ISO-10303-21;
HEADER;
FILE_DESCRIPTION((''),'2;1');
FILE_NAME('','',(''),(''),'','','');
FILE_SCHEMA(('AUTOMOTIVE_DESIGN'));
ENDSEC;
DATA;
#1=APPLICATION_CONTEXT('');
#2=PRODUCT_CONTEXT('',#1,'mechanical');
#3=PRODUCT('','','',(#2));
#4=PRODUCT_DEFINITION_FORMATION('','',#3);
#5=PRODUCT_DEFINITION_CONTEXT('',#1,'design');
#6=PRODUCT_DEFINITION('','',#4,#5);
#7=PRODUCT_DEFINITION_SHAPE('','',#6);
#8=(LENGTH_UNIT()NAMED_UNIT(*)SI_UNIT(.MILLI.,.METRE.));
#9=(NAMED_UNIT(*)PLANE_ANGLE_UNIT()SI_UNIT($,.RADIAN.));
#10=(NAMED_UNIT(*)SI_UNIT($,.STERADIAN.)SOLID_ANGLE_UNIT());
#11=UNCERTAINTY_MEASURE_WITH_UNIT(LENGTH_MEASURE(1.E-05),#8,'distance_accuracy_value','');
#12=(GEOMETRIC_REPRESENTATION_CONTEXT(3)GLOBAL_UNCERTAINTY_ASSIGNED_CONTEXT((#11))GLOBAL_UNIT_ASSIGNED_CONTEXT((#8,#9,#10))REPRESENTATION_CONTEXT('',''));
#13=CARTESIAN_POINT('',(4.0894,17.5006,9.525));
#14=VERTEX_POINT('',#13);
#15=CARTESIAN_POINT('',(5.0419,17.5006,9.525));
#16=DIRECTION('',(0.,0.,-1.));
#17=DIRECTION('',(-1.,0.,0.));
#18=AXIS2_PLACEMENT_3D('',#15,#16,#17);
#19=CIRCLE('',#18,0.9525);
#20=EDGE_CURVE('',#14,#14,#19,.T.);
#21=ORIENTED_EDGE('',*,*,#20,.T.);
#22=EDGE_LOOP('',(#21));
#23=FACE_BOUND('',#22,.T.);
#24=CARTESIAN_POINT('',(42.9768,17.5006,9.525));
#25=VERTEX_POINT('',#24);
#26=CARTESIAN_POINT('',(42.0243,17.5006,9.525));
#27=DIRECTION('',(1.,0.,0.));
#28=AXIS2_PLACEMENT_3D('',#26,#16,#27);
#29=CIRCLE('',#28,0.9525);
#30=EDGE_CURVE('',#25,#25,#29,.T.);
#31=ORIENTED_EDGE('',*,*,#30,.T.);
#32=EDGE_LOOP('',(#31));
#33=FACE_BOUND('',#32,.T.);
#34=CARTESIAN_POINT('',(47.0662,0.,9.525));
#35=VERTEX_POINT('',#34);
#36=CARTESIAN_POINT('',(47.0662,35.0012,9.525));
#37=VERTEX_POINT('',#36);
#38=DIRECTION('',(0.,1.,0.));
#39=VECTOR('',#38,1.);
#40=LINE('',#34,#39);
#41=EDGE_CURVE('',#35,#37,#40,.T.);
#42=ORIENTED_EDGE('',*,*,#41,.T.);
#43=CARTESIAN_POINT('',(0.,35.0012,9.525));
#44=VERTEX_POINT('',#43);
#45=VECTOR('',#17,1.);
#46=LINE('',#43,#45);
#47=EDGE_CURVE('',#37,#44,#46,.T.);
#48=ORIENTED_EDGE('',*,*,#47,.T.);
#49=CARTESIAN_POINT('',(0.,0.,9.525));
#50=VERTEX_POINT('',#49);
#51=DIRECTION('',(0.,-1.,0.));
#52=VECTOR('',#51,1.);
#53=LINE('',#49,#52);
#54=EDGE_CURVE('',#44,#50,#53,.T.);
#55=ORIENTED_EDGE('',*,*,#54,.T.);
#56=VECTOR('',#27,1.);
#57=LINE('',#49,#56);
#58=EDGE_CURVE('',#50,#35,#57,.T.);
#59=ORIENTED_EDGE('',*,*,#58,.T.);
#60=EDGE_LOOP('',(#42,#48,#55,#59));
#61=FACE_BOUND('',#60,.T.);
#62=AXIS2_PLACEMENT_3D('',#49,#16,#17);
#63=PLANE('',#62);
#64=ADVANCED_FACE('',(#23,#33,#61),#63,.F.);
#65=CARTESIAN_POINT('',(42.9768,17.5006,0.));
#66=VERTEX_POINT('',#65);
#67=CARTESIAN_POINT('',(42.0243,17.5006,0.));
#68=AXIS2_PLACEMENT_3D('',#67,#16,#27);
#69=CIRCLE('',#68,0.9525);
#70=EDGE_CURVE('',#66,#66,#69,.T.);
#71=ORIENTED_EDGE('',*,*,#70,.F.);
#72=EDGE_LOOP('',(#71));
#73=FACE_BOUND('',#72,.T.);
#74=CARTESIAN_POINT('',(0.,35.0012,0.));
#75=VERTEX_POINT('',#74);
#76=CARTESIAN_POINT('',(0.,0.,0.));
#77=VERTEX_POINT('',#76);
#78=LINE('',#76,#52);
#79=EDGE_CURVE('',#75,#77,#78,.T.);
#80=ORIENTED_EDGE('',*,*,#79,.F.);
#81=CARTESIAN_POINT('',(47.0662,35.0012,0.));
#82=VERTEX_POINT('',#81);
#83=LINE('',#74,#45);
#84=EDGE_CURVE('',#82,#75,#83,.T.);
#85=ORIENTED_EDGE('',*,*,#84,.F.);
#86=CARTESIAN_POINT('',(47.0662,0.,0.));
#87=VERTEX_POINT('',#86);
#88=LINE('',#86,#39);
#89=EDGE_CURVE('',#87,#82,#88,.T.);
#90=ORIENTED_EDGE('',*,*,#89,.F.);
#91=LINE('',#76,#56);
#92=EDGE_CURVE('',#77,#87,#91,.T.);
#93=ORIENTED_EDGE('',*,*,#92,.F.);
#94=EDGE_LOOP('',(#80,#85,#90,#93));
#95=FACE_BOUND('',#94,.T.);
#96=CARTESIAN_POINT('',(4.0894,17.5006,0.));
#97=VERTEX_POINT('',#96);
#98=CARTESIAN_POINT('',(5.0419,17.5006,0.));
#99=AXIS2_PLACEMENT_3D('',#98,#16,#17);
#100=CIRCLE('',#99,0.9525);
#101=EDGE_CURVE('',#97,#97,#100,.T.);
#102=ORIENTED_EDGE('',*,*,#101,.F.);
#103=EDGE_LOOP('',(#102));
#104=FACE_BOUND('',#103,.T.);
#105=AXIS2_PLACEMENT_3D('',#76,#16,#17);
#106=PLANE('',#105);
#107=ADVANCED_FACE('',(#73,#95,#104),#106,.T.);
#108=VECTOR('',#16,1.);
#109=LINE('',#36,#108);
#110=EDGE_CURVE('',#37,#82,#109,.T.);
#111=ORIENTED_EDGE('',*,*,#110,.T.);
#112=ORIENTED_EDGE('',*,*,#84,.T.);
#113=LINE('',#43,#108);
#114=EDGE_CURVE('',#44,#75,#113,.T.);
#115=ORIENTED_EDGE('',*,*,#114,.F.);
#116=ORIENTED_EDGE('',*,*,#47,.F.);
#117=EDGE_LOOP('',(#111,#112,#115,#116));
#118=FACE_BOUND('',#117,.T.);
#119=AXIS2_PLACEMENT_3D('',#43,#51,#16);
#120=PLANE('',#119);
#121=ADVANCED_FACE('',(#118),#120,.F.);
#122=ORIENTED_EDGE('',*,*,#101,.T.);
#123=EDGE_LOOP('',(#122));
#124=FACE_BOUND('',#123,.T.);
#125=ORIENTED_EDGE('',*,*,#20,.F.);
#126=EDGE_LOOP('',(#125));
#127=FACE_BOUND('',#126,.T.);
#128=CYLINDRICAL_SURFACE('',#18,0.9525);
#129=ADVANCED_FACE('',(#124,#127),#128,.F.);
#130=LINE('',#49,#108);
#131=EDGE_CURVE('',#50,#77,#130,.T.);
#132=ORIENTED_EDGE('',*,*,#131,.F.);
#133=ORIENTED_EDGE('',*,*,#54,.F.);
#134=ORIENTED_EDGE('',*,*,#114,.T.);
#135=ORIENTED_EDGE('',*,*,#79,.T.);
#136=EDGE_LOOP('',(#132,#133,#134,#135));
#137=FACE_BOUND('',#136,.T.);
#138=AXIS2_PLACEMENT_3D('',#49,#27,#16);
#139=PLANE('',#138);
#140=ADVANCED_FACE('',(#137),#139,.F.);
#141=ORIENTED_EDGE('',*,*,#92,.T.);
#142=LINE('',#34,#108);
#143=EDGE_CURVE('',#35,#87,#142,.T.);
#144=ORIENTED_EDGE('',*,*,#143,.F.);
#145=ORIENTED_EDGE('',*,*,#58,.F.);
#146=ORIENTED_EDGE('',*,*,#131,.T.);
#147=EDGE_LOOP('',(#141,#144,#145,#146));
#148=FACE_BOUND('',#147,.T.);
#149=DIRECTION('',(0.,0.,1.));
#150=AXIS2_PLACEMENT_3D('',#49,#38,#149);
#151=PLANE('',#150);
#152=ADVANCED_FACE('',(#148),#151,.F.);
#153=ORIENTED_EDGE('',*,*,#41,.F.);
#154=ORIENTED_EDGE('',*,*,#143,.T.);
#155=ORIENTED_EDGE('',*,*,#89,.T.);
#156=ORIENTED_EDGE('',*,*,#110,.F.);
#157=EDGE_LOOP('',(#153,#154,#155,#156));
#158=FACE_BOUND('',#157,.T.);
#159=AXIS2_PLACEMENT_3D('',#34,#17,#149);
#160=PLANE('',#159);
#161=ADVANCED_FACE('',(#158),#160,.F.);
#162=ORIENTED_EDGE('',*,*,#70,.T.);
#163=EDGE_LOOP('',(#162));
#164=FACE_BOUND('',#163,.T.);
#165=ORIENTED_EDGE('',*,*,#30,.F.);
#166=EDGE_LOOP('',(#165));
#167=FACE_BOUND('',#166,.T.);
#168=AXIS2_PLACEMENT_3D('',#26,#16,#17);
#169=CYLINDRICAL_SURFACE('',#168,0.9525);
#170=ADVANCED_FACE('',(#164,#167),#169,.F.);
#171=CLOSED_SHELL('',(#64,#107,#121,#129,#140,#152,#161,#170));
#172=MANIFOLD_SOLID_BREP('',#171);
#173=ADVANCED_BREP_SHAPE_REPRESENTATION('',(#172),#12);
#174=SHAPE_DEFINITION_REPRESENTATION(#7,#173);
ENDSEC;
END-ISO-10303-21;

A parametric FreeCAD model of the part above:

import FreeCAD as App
import Part
import Sketcher
from FreeCAD import Vector
Q = App.Units.Quantity

doc = App.newDocument("Part")
params = doc.addObject("Spreadsheet::Sheet", "Params")
for row, (alias, value) in enumerate([
    ("sketch1_width", "1.853 in"),
    ("sketch1_height", "1.378 in"),
    ("pad1_length", "0.375 in"),
    ("sketch2_diameter", "0.075 in"),
], start=1):
    params.set(f"A{row}", alias)
    params.set(f"B{row}", "=" + value)
    params.setAlias(f"B{row}", alias)

body = doc.addObject("PartDesign::Body", "Body")

# Sketch on XY plane
sketch1 = body.newObject("Sketcher::SketchObject", "Sketch")
sketch1.AttachmentSupport = (doc.getObject("XY_Plane"), [""])
sketch1.MapMode = "FlatFace"
sketch1.addGeometry([
    Part.LineSegment(Vector(0, 35, 0), Vector(0, 0, 0)),
    Part.LineSegment(Vector(0, 0, 0), Vector(47, 0, 0)),
    Part.LineSegment(Vector(47, 0, 0), Vector(47, 35, 0)),
    Part.LineSegment(Vector(47, 35, 0), Vector(0, 35, 0)),
], False)
sketch1.addConstraint([
    Sketcher.Constraint("Coincident", 0, 2, 1, 1),
    Sketcher.Constraint("Coincident", 1, 2, 2, 1),
    Sketcher.Constraint("Coincident", 2, 2, 3, 1),
    Sketcher.Constraint("Coincident", 3, 2, 0, 1),
    Sketcher.Constraint("Vertical", 0),
    Sketcher.Constraint("Horizontal", 1),
    Sketcher.Constraint("Vertical", 2),
    Sketcher.Constraint("Horizontal", 3),
    Sketcher.Constraint("Coincident", 0, 2, -1, 1),
    Sketcher.Constraint("DistanceX", 1, 1, 1, 2, Q("1.853 in")),
    Sketcher.Constraint("DistanceY", 0, 2, 0, 1, Q("1.378 in")),
])
sketch1.setExpression("Constraints[9]", "Params.sketch1_width")
sketch1.setExpression("Constraints[10]", "Params.sketch1_height")
pad1 = body.newObject("PartDesign::Pad", "Pad")
pad1.Profile = sketch1
pad1.setExpression("Length", "Params.pad1_length")

# Sketch on XY plane
sketch2 = body.newObject("Sketcher::SketchObject", "Sketch001")
sketch2.AttachmentSupport = (doc.getObject("XY_Plane"), [""])
sketch2.MapMode = "FlatFace"
sketch2.addGeometry([
    Part.Circle(Vector(5, 17.5, 0), Vector(0, 0, 1), 1),
    Part.Circle(Vector(42, 17.5, 0), Vector(0, 0, 1), 1),
], False)
sketch2.addConstraint([
    Sketcher.Constraint("Equal", 0, 1),
    Sketcher.Constraint("Horizontal", 0, 3, 1, 3),
    Sketcher.Constraint("Diameter", 0, Q("0.075 in")),
    Sketcher.Constraint("DistanceY", -1, 1, 0, 3, Q("0.689 in")),
    Sketcher.Constraint("DistanceX", 0, 3, 1, 3, Q("1.456 in")),
    Sketcher.Constraint("DistanceX", -1, 1, 0, 3, Q("0.1985 in")),
])
sketch2.setExpression("Constraints[2]", "Params.sketch2_diameter")
pocket1 = body.newObject("PartDesign::Pocket", "Pocket")
pocket1.Profile = sketch2
pocket1.Type = "ThroughAll"
pocket1.Reversed = True

doc.recompute()
